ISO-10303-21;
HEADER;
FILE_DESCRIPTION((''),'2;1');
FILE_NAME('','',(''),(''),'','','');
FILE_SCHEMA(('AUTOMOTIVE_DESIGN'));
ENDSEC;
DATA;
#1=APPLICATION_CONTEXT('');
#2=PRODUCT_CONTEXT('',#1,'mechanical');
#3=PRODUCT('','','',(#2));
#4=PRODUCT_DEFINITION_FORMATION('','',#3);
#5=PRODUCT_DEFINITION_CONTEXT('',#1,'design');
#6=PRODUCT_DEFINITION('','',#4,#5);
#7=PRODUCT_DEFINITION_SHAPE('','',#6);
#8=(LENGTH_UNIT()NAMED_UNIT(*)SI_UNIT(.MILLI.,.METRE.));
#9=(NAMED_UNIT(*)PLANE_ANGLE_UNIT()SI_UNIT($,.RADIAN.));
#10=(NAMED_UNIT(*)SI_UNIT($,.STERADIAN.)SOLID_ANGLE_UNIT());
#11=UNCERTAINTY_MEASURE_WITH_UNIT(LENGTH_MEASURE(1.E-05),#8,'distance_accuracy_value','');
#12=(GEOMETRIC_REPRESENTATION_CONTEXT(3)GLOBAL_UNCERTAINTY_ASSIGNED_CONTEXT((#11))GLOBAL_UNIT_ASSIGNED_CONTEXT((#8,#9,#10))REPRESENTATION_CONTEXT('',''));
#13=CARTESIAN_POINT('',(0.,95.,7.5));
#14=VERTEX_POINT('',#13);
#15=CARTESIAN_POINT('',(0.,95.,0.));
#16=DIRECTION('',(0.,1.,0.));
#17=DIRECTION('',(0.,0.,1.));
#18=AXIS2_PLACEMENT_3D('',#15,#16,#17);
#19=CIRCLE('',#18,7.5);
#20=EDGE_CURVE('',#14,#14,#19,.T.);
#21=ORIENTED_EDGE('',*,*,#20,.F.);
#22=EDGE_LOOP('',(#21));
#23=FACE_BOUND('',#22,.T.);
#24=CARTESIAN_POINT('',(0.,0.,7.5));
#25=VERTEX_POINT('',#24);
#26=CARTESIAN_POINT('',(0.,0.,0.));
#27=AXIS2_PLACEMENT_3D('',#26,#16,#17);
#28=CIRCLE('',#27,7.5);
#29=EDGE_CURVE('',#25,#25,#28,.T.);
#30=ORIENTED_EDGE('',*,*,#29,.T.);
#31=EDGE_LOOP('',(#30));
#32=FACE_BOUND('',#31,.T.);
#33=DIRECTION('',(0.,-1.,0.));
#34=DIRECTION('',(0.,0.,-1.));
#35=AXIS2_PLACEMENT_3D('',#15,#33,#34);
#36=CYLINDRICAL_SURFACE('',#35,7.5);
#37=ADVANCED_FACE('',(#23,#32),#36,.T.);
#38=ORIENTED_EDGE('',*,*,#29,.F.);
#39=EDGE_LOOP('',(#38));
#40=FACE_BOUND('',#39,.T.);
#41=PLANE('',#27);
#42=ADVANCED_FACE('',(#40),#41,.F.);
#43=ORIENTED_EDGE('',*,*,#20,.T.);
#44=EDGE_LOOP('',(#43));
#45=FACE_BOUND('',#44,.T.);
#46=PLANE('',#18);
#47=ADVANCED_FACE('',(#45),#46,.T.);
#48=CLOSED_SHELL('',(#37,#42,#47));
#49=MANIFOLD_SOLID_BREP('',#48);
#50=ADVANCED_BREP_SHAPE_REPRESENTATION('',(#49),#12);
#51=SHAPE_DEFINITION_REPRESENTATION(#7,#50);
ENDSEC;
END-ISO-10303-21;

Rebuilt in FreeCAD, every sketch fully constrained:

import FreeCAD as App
import Part
import Sketcher

V = App.Vector

doc = App.newDocument("Part")
params = doc.addObject("Spreadsheet::Sheet", "Params")
for row, (alias, value) in enumerate([
    ("sketch1_diameter", "15 mm"),
    ("pad1_length", "95 mm"),
], start=1):
    params.set(f"A{row}", alias)
    params.set(f"B{row}", "=" + value)
    params.setAlias(f"B{row}", alias)

body = doc.addObject("PartDesign::Body", "Body")

# Sketch on XZ plane
sketch1 = body.newObject("Sketcher::SketchObject", "Sketch")
sketch1.AttachmentSupport = (doc.getObject("XZ_Plane"), [""])
sketch1.MapMode = "FlatFace"
sketch1.addGeometry(Part.Circle(V(0, 0, 0), V(0, 0, 1), 8), False)
sketch1.addConstraint(Sketcher.Constraint("Coincident", 0, 3, -1, 1))
sketch1.addConstraint(Sketcher.Constraint("Diameter", 0, 15.0))
sketch1.setExpression("Constraints[1]", "Params.sketch1_diameter")
pad1 = body.newObject("PartDesign::Pad", "Pad")
pad1.Profile = sketch1
pad1.setExpression("Length", "Params.pad1_length")
pad1.Reversed = True

doc.recompute()
